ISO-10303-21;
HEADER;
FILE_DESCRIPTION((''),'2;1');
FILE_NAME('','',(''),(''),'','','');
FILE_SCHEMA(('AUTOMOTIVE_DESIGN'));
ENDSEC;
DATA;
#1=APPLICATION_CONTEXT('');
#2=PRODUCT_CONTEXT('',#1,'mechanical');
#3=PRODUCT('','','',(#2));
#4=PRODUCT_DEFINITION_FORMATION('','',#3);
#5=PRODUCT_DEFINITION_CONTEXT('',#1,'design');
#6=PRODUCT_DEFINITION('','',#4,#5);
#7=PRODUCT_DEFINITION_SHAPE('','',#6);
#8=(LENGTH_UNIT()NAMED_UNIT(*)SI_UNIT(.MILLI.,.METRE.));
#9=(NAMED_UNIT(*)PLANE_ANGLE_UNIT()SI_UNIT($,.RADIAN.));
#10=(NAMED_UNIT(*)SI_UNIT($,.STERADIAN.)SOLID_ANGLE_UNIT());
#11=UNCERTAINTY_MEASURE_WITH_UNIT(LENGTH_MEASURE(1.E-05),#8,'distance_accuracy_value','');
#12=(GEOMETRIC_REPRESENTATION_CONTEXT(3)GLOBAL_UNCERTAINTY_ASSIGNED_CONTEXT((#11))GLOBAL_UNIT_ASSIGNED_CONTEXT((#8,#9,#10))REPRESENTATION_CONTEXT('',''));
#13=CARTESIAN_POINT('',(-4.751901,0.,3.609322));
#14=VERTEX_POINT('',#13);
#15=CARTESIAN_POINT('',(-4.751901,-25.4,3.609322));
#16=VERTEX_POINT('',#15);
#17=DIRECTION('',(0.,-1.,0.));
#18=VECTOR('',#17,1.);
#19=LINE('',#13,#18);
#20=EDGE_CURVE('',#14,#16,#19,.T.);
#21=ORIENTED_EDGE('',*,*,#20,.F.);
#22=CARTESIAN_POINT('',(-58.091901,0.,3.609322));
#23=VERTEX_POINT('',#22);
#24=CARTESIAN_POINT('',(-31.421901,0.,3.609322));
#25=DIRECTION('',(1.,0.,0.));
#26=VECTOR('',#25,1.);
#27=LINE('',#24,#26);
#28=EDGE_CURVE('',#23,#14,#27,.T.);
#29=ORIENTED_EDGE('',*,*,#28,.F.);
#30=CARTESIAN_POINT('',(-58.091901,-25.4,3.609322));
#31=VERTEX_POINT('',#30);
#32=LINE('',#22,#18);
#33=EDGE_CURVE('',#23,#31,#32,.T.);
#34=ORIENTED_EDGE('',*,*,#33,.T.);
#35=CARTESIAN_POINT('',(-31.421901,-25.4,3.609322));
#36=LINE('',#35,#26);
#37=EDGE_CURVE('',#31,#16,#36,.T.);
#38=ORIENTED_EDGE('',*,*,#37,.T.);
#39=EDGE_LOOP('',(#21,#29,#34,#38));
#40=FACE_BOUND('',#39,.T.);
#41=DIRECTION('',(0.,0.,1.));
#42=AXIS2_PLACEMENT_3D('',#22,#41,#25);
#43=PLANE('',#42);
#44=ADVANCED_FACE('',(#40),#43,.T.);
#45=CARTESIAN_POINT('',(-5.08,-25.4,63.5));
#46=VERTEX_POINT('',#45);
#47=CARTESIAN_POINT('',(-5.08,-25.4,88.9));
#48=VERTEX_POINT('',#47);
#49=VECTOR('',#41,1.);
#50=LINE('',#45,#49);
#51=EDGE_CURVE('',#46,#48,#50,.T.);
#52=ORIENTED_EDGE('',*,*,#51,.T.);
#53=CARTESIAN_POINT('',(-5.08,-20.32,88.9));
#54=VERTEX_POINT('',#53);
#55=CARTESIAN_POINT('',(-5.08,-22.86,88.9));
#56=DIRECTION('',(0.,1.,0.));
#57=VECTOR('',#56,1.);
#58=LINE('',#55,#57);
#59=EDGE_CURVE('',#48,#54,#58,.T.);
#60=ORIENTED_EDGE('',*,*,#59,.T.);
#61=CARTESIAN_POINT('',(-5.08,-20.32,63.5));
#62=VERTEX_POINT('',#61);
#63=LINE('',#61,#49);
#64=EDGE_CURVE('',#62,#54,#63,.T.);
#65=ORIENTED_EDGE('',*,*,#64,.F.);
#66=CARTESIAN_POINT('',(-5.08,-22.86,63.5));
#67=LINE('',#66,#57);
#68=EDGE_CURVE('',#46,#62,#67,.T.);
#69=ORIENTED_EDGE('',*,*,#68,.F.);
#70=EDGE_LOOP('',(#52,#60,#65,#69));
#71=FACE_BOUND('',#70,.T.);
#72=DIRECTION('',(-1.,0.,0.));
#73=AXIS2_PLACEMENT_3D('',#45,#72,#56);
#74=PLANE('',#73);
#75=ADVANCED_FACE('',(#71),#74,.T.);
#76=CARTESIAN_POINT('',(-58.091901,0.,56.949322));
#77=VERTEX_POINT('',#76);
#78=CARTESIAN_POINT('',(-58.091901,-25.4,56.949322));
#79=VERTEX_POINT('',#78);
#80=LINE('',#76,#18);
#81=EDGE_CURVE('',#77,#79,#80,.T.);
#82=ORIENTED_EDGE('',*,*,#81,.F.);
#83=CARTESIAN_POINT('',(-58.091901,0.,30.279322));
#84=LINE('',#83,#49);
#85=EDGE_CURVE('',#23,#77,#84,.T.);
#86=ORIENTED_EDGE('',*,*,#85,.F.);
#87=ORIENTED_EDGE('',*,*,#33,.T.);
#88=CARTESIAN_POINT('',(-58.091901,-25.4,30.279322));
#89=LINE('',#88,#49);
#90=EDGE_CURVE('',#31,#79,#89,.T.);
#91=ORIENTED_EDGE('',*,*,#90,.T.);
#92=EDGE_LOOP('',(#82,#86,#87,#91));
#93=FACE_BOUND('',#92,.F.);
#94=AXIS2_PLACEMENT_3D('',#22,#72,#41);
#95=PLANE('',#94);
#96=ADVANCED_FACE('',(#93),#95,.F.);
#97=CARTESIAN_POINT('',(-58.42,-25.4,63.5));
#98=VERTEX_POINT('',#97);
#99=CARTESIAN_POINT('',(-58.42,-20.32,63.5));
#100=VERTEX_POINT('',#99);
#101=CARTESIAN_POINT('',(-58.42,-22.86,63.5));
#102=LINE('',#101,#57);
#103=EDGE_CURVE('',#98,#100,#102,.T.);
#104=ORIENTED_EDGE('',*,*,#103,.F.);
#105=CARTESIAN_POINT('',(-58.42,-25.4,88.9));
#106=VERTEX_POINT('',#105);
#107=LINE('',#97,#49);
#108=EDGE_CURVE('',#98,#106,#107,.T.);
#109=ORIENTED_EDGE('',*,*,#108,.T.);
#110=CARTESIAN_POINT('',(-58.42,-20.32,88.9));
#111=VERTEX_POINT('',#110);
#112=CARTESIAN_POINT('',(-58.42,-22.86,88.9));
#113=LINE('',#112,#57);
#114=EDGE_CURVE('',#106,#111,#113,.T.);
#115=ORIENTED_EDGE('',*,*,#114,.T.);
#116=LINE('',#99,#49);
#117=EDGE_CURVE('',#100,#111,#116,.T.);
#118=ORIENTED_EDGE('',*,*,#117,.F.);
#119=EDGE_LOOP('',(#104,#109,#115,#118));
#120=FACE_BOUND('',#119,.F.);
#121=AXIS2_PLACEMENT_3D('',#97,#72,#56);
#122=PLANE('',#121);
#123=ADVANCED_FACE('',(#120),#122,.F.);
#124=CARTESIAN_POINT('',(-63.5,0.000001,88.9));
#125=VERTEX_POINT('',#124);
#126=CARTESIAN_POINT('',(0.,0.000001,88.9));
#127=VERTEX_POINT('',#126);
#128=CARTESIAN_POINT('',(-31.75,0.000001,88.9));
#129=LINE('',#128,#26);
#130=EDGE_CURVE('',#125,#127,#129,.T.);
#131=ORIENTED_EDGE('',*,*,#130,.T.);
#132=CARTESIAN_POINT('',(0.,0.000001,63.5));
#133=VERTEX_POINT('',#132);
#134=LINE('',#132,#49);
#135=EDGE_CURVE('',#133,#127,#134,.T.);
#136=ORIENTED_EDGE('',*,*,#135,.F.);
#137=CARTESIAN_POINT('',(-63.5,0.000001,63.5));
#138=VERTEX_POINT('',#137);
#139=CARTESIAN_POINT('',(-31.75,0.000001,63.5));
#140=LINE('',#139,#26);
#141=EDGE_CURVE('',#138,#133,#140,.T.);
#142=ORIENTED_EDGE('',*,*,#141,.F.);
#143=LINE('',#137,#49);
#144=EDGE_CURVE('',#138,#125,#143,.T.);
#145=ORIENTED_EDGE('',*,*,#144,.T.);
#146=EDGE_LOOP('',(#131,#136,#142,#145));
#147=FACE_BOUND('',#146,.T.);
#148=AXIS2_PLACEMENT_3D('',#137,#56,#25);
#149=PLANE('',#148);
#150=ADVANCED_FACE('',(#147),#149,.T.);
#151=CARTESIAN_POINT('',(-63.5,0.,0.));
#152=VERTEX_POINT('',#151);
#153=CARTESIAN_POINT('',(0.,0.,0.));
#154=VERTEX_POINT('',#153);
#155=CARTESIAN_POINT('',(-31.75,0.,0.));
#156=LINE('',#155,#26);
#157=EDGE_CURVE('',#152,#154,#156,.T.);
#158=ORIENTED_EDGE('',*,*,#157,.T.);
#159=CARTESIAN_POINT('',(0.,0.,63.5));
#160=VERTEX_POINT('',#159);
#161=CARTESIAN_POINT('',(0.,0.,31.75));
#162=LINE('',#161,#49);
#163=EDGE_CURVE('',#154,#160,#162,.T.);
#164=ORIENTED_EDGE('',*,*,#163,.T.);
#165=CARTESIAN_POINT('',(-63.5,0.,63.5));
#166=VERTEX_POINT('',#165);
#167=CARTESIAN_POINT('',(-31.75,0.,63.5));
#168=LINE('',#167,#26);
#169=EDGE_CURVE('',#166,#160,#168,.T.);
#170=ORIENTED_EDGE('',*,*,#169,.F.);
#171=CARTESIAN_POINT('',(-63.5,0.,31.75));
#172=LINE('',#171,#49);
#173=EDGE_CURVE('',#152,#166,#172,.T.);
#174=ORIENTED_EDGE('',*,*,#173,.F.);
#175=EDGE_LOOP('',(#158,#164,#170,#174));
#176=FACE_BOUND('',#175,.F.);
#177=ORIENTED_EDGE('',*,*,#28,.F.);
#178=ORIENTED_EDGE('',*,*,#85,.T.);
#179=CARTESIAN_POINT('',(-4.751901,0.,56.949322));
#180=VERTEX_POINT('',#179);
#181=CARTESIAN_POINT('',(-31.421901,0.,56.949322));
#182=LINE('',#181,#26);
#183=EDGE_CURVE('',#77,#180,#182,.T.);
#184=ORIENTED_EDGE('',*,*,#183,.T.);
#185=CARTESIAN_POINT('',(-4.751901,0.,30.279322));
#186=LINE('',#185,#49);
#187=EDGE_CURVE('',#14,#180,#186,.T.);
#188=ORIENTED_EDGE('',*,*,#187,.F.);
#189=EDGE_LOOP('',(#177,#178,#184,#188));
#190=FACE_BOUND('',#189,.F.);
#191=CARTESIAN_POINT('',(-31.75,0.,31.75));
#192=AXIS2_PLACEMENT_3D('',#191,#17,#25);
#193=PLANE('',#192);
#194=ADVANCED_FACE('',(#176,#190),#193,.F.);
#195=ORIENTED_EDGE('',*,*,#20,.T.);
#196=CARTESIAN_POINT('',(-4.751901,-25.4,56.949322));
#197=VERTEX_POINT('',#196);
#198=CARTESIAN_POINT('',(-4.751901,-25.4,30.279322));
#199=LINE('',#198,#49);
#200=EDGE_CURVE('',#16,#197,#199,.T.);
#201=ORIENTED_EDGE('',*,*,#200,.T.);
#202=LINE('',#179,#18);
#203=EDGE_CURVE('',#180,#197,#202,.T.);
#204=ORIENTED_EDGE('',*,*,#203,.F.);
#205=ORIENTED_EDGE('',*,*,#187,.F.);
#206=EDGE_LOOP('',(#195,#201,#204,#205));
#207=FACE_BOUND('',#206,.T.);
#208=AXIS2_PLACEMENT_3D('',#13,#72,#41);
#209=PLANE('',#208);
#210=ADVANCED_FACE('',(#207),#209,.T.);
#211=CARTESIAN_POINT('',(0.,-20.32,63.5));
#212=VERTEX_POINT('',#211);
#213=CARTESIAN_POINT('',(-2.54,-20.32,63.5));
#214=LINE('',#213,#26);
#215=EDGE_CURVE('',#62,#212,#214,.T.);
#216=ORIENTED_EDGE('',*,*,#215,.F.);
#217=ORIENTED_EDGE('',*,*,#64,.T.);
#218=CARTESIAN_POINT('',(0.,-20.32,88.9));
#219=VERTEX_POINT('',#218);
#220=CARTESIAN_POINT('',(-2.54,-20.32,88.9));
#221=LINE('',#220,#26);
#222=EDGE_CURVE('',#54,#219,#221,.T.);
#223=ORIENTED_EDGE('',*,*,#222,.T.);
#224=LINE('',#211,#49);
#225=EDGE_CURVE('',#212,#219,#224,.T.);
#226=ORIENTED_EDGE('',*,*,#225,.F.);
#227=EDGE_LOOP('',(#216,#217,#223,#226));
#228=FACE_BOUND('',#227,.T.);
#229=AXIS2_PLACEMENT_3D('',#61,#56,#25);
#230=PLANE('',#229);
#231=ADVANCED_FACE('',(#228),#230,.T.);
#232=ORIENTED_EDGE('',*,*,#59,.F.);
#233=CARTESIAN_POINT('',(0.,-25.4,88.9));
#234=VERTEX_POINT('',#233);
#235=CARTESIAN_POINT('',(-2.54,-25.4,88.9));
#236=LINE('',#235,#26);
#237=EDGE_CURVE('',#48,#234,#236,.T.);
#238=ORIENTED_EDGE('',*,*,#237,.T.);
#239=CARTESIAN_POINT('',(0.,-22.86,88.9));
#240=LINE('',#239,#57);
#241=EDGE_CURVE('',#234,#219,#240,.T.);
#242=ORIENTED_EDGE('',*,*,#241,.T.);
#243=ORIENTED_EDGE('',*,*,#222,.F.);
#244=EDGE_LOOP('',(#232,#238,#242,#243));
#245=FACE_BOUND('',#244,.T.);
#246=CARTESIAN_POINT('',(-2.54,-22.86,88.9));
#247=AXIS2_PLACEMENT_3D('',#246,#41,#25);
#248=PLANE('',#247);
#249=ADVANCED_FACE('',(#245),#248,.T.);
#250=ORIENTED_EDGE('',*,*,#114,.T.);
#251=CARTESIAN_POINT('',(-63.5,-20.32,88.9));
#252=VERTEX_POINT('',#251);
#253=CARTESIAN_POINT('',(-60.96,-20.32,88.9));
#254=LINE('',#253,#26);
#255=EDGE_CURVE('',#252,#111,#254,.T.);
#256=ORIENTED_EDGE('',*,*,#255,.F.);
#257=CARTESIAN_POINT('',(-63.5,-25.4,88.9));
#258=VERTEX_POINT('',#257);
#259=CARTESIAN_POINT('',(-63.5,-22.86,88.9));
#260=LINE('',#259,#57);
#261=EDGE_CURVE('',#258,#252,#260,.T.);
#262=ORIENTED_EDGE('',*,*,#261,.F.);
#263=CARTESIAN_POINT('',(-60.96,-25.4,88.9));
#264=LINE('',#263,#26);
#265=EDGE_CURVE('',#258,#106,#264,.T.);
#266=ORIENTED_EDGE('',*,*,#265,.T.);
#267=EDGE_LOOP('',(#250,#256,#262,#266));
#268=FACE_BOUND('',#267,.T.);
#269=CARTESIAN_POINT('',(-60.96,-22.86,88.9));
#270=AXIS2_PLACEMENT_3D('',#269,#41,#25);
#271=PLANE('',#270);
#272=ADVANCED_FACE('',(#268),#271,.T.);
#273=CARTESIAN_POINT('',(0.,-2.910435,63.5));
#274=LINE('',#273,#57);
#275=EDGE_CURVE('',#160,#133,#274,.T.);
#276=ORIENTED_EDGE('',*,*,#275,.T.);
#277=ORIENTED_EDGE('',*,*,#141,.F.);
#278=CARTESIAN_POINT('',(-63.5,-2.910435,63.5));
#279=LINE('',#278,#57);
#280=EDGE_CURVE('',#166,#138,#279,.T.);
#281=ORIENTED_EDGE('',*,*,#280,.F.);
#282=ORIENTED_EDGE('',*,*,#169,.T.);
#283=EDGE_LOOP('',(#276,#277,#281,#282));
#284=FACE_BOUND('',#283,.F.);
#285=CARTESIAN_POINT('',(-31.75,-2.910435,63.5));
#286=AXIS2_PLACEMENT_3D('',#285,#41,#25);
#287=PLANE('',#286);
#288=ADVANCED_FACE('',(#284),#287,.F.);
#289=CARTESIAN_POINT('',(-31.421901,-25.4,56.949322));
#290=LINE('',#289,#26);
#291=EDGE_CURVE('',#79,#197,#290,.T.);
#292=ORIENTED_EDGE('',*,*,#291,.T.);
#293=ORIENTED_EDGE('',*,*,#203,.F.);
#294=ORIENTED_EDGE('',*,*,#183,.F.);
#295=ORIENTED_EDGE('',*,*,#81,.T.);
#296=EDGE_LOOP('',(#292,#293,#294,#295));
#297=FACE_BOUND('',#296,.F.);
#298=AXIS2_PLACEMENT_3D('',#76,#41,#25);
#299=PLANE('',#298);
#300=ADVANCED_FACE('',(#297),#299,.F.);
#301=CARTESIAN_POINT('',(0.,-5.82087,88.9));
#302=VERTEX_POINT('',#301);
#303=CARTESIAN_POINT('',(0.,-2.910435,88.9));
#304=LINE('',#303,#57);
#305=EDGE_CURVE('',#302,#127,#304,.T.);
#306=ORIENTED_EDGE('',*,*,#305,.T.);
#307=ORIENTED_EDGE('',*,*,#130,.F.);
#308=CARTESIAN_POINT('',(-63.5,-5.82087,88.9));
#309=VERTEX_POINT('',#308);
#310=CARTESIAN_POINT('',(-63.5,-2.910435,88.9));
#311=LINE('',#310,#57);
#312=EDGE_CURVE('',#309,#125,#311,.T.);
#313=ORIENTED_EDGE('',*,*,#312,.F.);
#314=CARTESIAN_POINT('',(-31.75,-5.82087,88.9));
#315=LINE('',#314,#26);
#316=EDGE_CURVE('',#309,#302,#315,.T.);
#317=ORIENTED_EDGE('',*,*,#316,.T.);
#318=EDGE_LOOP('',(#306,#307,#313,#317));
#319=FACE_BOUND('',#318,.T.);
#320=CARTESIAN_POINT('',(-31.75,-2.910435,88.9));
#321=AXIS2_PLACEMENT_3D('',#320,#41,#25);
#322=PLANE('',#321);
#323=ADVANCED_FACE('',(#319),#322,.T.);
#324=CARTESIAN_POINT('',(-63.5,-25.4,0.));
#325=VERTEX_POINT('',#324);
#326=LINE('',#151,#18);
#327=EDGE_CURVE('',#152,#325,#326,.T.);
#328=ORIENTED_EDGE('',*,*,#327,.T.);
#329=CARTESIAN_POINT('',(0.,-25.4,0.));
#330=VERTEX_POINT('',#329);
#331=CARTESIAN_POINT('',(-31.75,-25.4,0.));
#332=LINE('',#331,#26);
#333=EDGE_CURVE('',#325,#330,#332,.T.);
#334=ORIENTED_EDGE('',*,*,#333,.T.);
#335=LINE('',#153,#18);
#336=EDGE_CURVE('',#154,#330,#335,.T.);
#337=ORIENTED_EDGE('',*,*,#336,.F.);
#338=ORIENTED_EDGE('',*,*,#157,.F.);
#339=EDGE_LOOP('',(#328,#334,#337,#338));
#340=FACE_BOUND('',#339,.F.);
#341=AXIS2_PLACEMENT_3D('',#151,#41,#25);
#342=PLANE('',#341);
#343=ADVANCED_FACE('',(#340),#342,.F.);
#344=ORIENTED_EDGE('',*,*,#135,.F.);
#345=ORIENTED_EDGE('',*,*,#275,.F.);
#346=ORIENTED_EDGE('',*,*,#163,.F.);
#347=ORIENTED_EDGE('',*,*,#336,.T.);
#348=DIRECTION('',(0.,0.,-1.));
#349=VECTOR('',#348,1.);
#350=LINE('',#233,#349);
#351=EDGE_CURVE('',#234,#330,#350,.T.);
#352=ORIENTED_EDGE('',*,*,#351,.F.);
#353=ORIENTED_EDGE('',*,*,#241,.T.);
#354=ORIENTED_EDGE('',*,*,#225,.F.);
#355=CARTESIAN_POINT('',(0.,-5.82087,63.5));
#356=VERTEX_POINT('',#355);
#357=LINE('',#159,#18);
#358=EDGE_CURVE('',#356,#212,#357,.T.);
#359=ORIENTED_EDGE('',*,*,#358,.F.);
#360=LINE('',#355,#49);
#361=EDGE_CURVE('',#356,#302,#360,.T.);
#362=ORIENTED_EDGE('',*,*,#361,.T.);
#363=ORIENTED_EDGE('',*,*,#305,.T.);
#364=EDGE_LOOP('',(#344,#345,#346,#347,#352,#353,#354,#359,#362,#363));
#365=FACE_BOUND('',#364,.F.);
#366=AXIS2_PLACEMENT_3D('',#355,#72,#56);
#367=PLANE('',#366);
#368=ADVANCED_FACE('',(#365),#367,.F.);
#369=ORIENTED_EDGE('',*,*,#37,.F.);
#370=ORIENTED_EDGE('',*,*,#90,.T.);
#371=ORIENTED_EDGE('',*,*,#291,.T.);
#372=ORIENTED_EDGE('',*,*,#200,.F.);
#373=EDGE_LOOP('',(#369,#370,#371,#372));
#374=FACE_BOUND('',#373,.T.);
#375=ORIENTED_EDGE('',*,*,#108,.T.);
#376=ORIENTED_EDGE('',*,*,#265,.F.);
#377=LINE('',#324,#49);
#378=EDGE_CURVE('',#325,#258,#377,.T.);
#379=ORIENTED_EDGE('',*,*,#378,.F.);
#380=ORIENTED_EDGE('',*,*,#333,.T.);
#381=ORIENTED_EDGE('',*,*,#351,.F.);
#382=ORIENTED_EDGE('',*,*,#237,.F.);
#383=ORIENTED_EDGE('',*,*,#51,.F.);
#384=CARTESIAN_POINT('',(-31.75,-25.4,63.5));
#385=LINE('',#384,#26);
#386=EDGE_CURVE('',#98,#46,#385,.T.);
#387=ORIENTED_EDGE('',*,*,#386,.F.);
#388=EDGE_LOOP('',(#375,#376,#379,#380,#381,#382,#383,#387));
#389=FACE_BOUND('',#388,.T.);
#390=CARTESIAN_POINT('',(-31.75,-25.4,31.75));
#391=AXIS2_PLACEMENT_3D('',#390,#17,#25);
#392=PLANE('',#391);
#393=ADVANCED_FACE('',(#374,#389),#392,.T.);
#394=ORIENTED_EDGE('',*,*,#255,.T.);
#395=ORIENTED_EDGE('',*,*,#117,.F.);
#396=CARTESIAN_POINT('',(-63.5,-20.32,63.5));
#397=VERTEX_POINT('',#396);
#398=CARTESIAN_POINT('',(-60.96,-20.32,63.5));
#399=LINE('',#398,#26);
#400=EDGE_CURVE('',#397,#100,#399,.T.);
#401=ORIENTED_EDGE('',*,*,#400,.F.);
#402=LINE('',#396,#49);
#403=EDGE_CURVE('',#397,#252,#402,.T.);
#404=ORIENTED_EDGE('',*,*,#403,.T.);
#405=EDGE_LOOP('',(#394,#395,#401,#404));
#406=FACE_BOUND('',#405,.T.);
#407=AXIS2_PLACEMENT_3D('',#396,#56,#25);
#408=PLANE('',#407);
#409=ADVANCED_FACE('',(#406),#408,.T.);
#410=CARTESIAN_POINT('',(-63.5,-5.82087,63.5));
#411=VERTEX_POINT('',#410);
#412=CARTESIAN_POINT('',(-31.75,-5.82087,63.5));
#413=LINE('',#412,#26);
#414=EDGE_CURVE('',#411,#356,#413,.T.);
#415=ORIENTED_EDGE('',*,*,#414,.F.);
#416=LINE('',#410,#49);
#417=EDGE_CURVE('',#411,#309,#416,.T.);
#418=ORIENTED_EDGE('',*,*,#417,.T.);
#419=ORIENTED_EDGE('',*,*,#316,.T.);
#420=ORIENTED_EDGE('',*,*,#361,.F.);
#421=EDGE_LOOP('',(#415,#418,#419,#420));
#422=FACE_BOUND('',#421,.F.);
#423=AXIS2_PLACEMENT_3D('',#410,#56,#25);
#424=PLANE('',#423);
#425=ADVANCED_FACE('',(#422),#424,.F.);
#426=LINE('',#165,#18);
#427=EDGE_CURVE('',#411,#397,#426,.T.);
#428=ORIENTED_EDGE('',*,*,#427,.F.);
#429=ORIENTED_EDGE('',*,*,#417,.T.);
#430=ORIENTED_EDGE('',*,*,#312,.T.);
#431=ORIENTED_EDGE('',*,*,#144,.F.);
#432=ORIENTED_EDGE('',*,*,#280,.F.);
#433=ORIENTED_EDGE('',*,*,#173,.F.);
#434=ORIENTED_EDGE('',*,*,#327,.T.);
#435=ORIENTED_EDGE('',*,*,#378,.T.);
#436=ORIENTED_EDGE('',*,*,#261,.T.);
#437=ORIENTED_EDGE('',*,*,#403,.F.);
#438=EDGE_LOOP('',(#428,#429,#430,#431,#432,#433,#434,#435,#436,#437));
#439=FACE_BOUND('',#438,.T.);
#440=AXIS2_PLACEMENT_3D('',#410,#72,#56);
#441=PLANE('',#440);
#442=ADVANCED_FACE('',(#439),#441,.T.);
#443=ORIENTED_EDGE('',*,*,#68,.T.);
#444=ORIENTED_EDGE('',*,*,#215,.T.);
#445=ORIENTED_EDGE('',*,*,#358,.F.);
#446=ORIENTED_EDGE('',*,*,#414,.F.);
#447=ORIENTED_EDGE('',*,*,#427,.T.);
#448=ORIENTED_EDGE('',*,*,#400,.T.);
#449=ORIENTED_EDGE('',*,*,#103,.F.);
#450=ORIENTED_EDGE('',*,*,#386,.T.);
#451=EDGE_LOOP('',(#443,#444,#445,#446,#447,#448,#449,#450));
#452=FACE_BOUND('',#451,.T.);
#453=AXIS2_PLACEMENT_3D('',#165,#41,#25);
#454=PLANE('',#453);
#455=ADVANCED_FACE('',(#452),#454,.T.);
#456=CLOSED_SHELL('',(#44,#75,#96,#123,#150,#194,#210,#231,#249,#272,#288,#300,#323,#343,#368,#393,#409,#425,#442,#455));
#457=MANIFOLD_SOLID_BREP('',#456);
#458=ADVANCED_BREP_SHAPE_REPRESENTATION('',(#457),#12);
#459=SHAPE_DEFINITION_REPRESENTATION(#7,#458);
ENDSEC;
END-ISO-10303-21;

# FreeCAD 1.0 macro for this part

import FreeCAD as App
import Part
import Sketcher
Q = App.Units.Quantity


def add_polygon(sketch, points):
    """Adds a closed chain of lines whose ends are joined by coincident constraints."""
    first, n = sketch.GeometryCount, len(points)
    for a, b in zip(points, points[1:] + points[:1]):
        sketch.addGeometry(Part.LineSegment(App.Vector(*a, 0), App.Vector(*b, 0)), False)
    for i in range(n):
        sketch.addConstraint(Sketcher.Constraint("Coincident", first + i, 2, first + (i + 1) % n, 1))

doc = App.newDocument("Part")
params = doc.addObject("Spreadsheet::Sheet", "Params")
for row, (alias, value) in enumerate([
    ("sketch1_width", "2.5 in"),
    ("sketch1_width2", "2.1 in"),
    ("pad1_length", "1 in"),
    ("sketch2_width", "2.5 in"),
    ("sketch2_width2", "0.2 in"),
    ("pad2_length", "1 in"),
], start=1):
    params.set(f"A{row}", alias)
    params.set(f"B{row}", "=" + value)
    params.setAlias(f"B{row}", alias)

body = doc.addObject("PartDesign::Body", "Body")

# Sketch on XZ plane
sketch1 = doc.addObject("Sketcher::SketchObject", "Sketch")
body.addObject(sketch1)
sketch1.AttachmentSupport = (doc.XZ_Plane, [""])
sketch1.MapMode = "FlatFace"
add_polygon(sketch1, [(-63.5, 63.5), (-63.5, 0), (0, 0), (0, 63.5)])  # lines 0-3
add_polygon(sketch1, [(-4.751901, 3.609322), (-58.091901, 3.609322), (-58.091901, 56.949322), (-4.751901, 56.949322)])  # lines 4-7
sketch1.addConstraint([
    Sketcher.Constraint("Vertical", 0),
    Sketcher.Constraint("Horizontal", 1),
    Sketcher.Constraint("Vertical", 2),
    Sketcher.Constraint("Horizontal", 3),
    Sketcher.Constraint("Horizontal", 4),
    Sketcher.Constraint("Vertical", 5),
    Sketcher.Constraint("Horizontal", 6),
    Sketcher.Constraint("Vertical", 7),
    Sketcher.Constraint("Coincident", 1, 2, -1, 1),
    Sketcher.Constraint("Equal", 3, 0),
    Sketcher.Constraint("Equal", 6, 5),
    Sketcher.Constraint("DistanceX", 1, 1, 1, 2, Q("2.5 in")),
    Sketcher.Constraint("DistanceX", 4, 2, 4, 1, Q("2.1 in")),
    Sketcher.Constraint("DistanceX", 4, 2, -1, 1, Q("58.091901 mm")),
    Sketcher.Constraint("DistanceY", -1, 1, 4, 2, Q("3.609322 mm")),
])
sketch1.setExpression("Constraints[19]", "Params.sketch1_width")
sketch1.setExpression("Constraints[20]", "Params.sketch1_width2")
pad1 = doc.addObject("PartDesign::Pad", "Pad")
body.addObject(pad1)
pad1.Profile = sketch1
pad1.setExpression("Length", "Params.pad1_length")

# Sketch on XY plane
sketch2 = doc.addObject("Sketcher::SketchObject", "Sketch001")
body.addObject(sketch2)
sketch2.AttachmentSupport = (doc.XY_Plane, [""])
sketch2.MapMode = "FlatFace"
sketch2.AttachmentOffset = App.Placement(App.Vector(0, 0, 2.5 * 25.4), App.Rotation())
add_polygon(sketch2, [(-63.5, 0), (-63.5, -5.82087), (0, -5.82087), (0, 0)])  # lines 0-3
add_polygon(sketch2, [(-63.5, -20.32), (-63.5, -25.4), (-58.42, -25.4), (-58.42, -20.32)])  # lines 4-7
add_polygon(sketch2, [(-5.08, -20.32), (-5.08, -25.4), (0, -25.4), (0, -20.32)])  # lines 8-11
sketch2.addConstraint([
    Sketcher.Constraint("Vertical", 0),
    Sketcher.Constraint("Horizontal", 1),
    Sketcher.Constraint("Vertical", 2),
    Sketcher.Constraint("Horizontal", 3),
    Sketcher.Constraint("Vertical", 4),
    Sketcher.Constraint("Horizontal", 5),
    Sketcher.Constraint("Vertical", 6),
    Sketcher.Constraint("Horizontal", 7),
    Sketcher.Constraint("Vertical", 8),
    Sketcher.Constraint("Horizontal", 9),
    Sketcher.Constraint("Vertical", 10),
    Sketcher.Constraint("Horizontal", 11),
    Sketcher.Constraint("Coincident", 2, 2, -1, 1),
    Sketcher.Constraint("PointOnObject", 9, 2, -2),
    Sketcher.Constraint("Horizontal", 5, 2, 8, 2),
    Sketcher.Constraint("Horizontal", 7, 2, 10, 2),
    Sketcher.Constraint("Vertical", 3, 2, 4, 2),
    Sketcher.Constraint("Equal", 7, 9),
    Sketcher.Constraint("Equal", 11, 4),
    Sketcher.Constraint("DistanceX", 1, 1, 1, 2, Q("2.5 in")),
    Sketcher.Constraint("DistanceX", 5, 1, 5, 2, Q("0.2 in")),
    Sketcher.Constraint("DistanceY", 4, 2, -1, 1, Q("1 in")),
    Sketcher.Constraint("DistanceY", 0, 2, 0, 1, Q("5.820871 mm")),
])
sketch2.setExpression("Constraints[31]", "Params.sketch2_width")
sketch2.setExpression("Constraints[32]", "Params.sketch2_width2")
pad2 = doc.addObject("PartDesign::Pad", "Pad001")
body.addObject(pad2)
pad2.Profile = sketch2
pad2.setExpression("Length", "Params.pad2_length")

doc.recompute()
